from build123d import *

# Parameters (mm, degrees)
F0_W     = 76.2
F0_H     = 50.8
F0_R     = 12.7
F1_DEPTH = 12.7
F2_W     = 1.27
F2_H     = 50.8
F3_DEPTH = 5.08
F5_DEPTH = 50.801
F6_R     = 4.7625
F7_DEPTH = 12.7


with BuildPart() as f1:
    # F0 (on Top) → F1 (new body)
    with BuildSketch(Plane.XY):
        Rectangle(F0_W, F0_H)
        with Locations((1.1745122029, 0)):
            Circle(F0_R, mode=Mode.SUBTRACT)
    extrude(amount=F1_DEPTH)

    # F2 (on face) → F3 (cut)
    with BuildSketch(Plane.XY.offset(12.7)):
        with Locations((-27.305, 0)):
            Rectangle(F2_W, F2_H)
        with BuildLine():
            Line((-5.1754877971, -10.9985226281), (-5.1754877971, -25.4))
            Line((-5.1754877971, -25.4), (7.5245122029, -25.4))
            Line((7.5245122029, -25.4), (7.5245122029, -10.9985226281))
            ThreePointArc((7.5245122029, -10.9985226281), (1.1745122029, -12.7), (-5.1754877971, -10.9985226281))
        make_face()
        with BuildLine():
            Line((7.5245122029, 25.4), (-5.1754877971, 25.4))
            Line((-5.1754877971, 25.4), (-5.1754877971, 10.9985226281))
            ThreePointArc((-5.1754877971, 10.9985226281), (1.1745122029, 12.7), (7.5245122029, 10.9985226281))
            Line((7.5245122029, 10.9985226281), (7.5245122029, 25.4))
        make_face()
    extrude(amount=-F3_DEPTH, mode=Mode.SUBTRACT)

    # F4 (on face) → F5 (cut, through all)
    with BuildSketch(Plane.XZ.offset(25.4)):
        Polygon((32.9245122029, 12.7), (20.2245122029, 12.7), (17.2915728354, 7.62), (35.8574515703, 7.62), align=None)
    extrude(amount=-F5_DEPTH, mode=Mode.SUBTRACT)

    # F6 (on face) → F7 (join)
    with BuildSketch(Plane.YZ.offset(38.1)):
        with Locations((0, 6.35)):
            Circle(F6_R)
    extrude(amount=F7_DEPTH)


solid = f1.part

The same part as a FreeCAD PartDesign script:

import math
import FreeCAD as App
import Part
import Sketcher
Q = App.Units.Quantity


def add_polygon(sketch, points):
    """Adds a closed chain of lines whose ends are joined by coincident constraints."""
    first, n = sketch.GeometryCount, len(points)
    for a, b in zip(points, points[1:] + points[:1]):
        sketch.addGeometry(Part.LineSegment(App.Vector(*a, 0), App.Vector(*b, 0)), False)
    for i in range(n):
        sketch.addConstraint(Sketcher.Constraint("Coincident", first + i, 2, first + (i + 1) % n, 1))

doc = App.newDocument("Part")
body = doc.addObject("PartDesign::Body", "Body")

sketch1 = body.newObject("Sketcher::SketchObject", "Sketch")
sketch1.AttachmentSupport = (doc.getObject("XY_Plane"), [""])
sketch1.MapMode = "FlatFace"
add_polygon(sketch1, [(-38.1, 25.4), (-38.1, -25.4), (38.1, -25.4), (38.1, 25.4)])
sketch1.addGeometry(Part.Circle(App.Vector(1.174512, 0, 0), App.Vector(0, 0, 1), 12.7), False)
sketch1.addConstraint(Sketcher.Constraint("Vertical", 0))
sketch1.addConstraint(Sketcher.Constraint("Horizontal", 1))
sketch1.addConstraint(Sketcher.Constraint("Vertical", 2))
sketch1.addConstraint(Sketcher.Constraint("Horizontal", 3))
sketch1.addConstraint(Sketcher.Constraint("Symmetric", 0, 2, 2, 2, -1, 1))
sketch1.addConstraint(Sketcher.Constraint("PointOnObject", 4, 3, -1))
sketch1.addConstraint(Sketcher.Constraint("Diameter", 4, Q("1 in")))
sketch1.addConstraint(Sketcher.Constraint("DistanceX", 1, 1, 1, 2, Q("3 in")))
sketch1.addConstraint(Sketcher.Constraint("DistanceY", 0, 2, 0, 1, Q("2 in")))
sketch1.addConstraint(Sketcher.Constraint("DistanceX", -1, 1, 4, 3, 1.174512))
pad1 = body.newObject("PartDesign::Pad", "Pad")
pad1.Profile = sketch1
pad1.Length = Q("0.5 in")

sketch2 = body.newObject("Sketcher::SketchObject", "Sketch001")
sketch2.AttachmentSupport = (doc.getObject("XY_Plane"), [""])
sketch2.MapMode = "FlatFace"
sketch2.AttachmentOffset = App.Placement(App.Vector(0, 0, 0.5 * 25.4), App.Rotation())
add_polygon(sketch2, [(-27.94, 25.4), (-27.94, -25.4), (-26.67, -25.4), (-26.67, 25.4)])
sketch2.addGeometry(Part.LineSegment(App.Vector(-5.175488, -10.998523, 0), App.Vector(-5.175488, -25.4, 0)), False)
sketch2.addGeometry(Part.LineSegment(App.Vector(-5.175488, -25.4, 0), App.Vector(7.524512, -25.4, 0)), False)
sketch2.addGeometry(Part.LineSegment(App.Vector(7.524512, -25.4, 0), App.Vector(7.524512, -10.998523, 0)), False)
sketch2.addGeometry(Part.ArcOfCircle(Part.Circle(App.Vector(1.174512, 0, 0), App.Vector(0, 0, 1), 12.7), math.radians(-120), math.radians(-60)), False)
sketch2.addGeometry(Part.LineSegment(App.Vector(7.524512, 25.4, 0), App.Vector(-5.175488, 25.4, 0)), False)
sketch2.addGeometry(Part.LineSegment(App.Vector(-5.175488, 25.4, 0), App.Vector(-5.175488, 10.998523, 0)), False)
sketch2.addGeometry(Part.ArcOfCircle(Part.Circle(App.Vector(1.174512, 0, 0), App.Vector(0, 0, 1), 12.7), math.radians(60), math.radians(120)), False)
sketch2.addGeometry(Part.LineSegment(App.Vector(7.524512, 10.998523, 0), App.Vector(7.524512, 25.4, 0)), False)
sketch2.addConstraint(Sketcher.Constraint("Coincident", 4, 2, 5, 1))
sketch2.addConstraint(Sketcher.Constraint("Coincident", 5, 2, 6, 1))
sketch2.addConstraint(Sketcher.Constraint("Coincident", 6, 2, 7, 2))
sketch2.addConstraint(Sketcher.Constraint("Coincident", 7, 1, 4, 1))
sketch2.addConstraint(Sketcher.Constraint("Coincident", 8, 2, 9, 1))
sketch2.addConstraint(Sketcher.Constraint("Coincident", 9, 2, 10, 2))
sketch2.addConstraint(Sketcher.Constraint("Coincident", 10, 1, 11, 1))
sketch2.addConstraint(Sketcher.Constraint("Coincident", 11, 2, 8, 1))
sketch2.addConstraint(Sketcher.Constraint("Vertical", 0))
sketch2.addConstraint(Sketcher.Constraint("Horizontal", 1))
sketch2.addConstraint(Sketcher.Constraint("Vertical", 2))
sketch2.addConstraint(Sketcher.Constraint("Horizontal", 3))
sketch2.addConstraint(Sketcher.Constraint("Vertical", 4))
sketch2.addConstraint(Sketcher.Constraint("Horizontal", 5))
sketch2.addConstraint(Sketcher.Constraint("Vertical", 6))
sketch2.addConstraint(Sketcher.Constraint("Horizontal", 8))
sketch2.addConstraint(Sketcher.Constraint("Vertical", 9))
sketch2.addConstraint(Sketcher.Constraint("Vertical", 11))
sketch2.addConstraint(Sketcher.Constraint("Coincident", 10, 3, 7, 3))
sketch2.addConstraint(Sketcher.Constraint("Equal", 7, 10))
sketch2.addConstraint(Sketcher.Constraint("Symmetric", 4, 2, 8, 2, -1))
sketch2.addConstraint(Sketcher.Constraint("Symmetric", 6, 2, 10, 1, -1))
sketch2.addConstraint(Sketcher.Constraint("Horizontal", 1, 2, 4, 2))
sketch2.addConstraint(Sketcher.Constraint("Horizontal", 6, 2, 7, 1))
sketch2.addConstraint(Sketcher.Constraint("Horizontal", 3, 2, 8, 2))
sketch2.addConstraint(Sketcher.Constraint("Radius", 7, Q("0.5 in")))
sketch2.addConstraint(Sketcher.Constraint("DistanceY", 0, 2, 0, 1, Q("2 in")))
sketch2.addConstraint(Sketcher.Constraint("DistanceX", 5, 1, 5, 2, Q("0.5 in")))
sketch2.addConstraint(Sketcher.Constraint("DistanceX", 1, 1, 1, 2, Q("0.05 in")))
sketch2.addConstraint(Sketcher.Constraint("DistanceX", 0, 2, -1, 1, Q("1.1 in")))
sketch2.addConstraint(Sketcher.Constraint("DistanceX", -1, 1, 7, 3, 1.174512))
pocket1 = body.newObject("PartDesign::Pocket", "Pocket")
pocket1.Profile = sketch2
pocket1.Length = Q("0.2 in")

sketch3 = body.newObject("Sketcher::SketchObject", "Sketch002")
sketch3.AttachmentSupport = (doc.getObject("XZ_Plane"), [""])
sketch3.MapMode = "FlatFace"
sketch3.AttachmentOffset = App.Placement(App.Vector(0, 0, 1 * 25.4), App.Rotation())
add_polygon(sketch3, [(32.924512, 12.7), (20.224512, 12.7), (17.291573, 7.62), (35.857452, 7.62)])
sketch3.addConstraint(Sketcher.Constraint("Horizontal", 0))
sketch3.addConstraint(Sketcher.Constraint("Horizontal", 2))
sketch3.addConstraint(Sketcher.Constraint("Equal", 1, 3))
sketch3.addConstraint(Sketcher.Constraint("DistanceX", 0, 2, 0, 1, Q("0.5 in")))
sketch3.addConstraint(Sketcher.Constraint("Angle", 1, Q("-120 deg")))
sketch3.addConstraint(Sketcher.Constraint("DistanceY", -1, 1, 0, 2, Q("0.5 in")))
sketch3.addConstraint(Sketcher.Constraint("DistanceY", -1, 1, 1, 2, Q("0.3 in")))
sketch3.addConstraint(Sketcher.Constraint("DistanceX", -1, 1, 2, 2, 35.857452))
pocket2 = body.newObject("PartDesign::Pocket", "Pocket001")
pocket2.Profile = sketch3
pocket2.Type = "ThroughAll"

sketch4 = body.newObject("Sketcher::SketchObject", "Sketch003")
sketch4.AttachmentSupport = (doc.getObject("YZ_Plane"), [""])
sketch4.MapMode = "FlatFace"
sketch4.AttachmentOffset = App.Placement(App.Vector(0, 0, 1.5 * 25.4), App.Rotation())
sketch4.addGeometry(Part.Circle(App.Vector(0, 6.35, 0), App.Vector(0, 0, 1), 4.7625), False)
sketch4.addConstraint(Sketcher.Constraint("PointOnObject", 0, 3, -2))
sketch4.addConstraint(Sketcher.Constraint("Diameter", 0, Q("0.375 in")))
sketch4.addConstraint(Sketcher.Constraint("DistanceY", -1, 1, 0, 3, Q("0.25 in")))
pad2 = body.newObject("PartDesign::Pad", "Pad001")
pad2.Profile = sketch4
pad2.Length = Q("0.5 in")

doc.recompute()
